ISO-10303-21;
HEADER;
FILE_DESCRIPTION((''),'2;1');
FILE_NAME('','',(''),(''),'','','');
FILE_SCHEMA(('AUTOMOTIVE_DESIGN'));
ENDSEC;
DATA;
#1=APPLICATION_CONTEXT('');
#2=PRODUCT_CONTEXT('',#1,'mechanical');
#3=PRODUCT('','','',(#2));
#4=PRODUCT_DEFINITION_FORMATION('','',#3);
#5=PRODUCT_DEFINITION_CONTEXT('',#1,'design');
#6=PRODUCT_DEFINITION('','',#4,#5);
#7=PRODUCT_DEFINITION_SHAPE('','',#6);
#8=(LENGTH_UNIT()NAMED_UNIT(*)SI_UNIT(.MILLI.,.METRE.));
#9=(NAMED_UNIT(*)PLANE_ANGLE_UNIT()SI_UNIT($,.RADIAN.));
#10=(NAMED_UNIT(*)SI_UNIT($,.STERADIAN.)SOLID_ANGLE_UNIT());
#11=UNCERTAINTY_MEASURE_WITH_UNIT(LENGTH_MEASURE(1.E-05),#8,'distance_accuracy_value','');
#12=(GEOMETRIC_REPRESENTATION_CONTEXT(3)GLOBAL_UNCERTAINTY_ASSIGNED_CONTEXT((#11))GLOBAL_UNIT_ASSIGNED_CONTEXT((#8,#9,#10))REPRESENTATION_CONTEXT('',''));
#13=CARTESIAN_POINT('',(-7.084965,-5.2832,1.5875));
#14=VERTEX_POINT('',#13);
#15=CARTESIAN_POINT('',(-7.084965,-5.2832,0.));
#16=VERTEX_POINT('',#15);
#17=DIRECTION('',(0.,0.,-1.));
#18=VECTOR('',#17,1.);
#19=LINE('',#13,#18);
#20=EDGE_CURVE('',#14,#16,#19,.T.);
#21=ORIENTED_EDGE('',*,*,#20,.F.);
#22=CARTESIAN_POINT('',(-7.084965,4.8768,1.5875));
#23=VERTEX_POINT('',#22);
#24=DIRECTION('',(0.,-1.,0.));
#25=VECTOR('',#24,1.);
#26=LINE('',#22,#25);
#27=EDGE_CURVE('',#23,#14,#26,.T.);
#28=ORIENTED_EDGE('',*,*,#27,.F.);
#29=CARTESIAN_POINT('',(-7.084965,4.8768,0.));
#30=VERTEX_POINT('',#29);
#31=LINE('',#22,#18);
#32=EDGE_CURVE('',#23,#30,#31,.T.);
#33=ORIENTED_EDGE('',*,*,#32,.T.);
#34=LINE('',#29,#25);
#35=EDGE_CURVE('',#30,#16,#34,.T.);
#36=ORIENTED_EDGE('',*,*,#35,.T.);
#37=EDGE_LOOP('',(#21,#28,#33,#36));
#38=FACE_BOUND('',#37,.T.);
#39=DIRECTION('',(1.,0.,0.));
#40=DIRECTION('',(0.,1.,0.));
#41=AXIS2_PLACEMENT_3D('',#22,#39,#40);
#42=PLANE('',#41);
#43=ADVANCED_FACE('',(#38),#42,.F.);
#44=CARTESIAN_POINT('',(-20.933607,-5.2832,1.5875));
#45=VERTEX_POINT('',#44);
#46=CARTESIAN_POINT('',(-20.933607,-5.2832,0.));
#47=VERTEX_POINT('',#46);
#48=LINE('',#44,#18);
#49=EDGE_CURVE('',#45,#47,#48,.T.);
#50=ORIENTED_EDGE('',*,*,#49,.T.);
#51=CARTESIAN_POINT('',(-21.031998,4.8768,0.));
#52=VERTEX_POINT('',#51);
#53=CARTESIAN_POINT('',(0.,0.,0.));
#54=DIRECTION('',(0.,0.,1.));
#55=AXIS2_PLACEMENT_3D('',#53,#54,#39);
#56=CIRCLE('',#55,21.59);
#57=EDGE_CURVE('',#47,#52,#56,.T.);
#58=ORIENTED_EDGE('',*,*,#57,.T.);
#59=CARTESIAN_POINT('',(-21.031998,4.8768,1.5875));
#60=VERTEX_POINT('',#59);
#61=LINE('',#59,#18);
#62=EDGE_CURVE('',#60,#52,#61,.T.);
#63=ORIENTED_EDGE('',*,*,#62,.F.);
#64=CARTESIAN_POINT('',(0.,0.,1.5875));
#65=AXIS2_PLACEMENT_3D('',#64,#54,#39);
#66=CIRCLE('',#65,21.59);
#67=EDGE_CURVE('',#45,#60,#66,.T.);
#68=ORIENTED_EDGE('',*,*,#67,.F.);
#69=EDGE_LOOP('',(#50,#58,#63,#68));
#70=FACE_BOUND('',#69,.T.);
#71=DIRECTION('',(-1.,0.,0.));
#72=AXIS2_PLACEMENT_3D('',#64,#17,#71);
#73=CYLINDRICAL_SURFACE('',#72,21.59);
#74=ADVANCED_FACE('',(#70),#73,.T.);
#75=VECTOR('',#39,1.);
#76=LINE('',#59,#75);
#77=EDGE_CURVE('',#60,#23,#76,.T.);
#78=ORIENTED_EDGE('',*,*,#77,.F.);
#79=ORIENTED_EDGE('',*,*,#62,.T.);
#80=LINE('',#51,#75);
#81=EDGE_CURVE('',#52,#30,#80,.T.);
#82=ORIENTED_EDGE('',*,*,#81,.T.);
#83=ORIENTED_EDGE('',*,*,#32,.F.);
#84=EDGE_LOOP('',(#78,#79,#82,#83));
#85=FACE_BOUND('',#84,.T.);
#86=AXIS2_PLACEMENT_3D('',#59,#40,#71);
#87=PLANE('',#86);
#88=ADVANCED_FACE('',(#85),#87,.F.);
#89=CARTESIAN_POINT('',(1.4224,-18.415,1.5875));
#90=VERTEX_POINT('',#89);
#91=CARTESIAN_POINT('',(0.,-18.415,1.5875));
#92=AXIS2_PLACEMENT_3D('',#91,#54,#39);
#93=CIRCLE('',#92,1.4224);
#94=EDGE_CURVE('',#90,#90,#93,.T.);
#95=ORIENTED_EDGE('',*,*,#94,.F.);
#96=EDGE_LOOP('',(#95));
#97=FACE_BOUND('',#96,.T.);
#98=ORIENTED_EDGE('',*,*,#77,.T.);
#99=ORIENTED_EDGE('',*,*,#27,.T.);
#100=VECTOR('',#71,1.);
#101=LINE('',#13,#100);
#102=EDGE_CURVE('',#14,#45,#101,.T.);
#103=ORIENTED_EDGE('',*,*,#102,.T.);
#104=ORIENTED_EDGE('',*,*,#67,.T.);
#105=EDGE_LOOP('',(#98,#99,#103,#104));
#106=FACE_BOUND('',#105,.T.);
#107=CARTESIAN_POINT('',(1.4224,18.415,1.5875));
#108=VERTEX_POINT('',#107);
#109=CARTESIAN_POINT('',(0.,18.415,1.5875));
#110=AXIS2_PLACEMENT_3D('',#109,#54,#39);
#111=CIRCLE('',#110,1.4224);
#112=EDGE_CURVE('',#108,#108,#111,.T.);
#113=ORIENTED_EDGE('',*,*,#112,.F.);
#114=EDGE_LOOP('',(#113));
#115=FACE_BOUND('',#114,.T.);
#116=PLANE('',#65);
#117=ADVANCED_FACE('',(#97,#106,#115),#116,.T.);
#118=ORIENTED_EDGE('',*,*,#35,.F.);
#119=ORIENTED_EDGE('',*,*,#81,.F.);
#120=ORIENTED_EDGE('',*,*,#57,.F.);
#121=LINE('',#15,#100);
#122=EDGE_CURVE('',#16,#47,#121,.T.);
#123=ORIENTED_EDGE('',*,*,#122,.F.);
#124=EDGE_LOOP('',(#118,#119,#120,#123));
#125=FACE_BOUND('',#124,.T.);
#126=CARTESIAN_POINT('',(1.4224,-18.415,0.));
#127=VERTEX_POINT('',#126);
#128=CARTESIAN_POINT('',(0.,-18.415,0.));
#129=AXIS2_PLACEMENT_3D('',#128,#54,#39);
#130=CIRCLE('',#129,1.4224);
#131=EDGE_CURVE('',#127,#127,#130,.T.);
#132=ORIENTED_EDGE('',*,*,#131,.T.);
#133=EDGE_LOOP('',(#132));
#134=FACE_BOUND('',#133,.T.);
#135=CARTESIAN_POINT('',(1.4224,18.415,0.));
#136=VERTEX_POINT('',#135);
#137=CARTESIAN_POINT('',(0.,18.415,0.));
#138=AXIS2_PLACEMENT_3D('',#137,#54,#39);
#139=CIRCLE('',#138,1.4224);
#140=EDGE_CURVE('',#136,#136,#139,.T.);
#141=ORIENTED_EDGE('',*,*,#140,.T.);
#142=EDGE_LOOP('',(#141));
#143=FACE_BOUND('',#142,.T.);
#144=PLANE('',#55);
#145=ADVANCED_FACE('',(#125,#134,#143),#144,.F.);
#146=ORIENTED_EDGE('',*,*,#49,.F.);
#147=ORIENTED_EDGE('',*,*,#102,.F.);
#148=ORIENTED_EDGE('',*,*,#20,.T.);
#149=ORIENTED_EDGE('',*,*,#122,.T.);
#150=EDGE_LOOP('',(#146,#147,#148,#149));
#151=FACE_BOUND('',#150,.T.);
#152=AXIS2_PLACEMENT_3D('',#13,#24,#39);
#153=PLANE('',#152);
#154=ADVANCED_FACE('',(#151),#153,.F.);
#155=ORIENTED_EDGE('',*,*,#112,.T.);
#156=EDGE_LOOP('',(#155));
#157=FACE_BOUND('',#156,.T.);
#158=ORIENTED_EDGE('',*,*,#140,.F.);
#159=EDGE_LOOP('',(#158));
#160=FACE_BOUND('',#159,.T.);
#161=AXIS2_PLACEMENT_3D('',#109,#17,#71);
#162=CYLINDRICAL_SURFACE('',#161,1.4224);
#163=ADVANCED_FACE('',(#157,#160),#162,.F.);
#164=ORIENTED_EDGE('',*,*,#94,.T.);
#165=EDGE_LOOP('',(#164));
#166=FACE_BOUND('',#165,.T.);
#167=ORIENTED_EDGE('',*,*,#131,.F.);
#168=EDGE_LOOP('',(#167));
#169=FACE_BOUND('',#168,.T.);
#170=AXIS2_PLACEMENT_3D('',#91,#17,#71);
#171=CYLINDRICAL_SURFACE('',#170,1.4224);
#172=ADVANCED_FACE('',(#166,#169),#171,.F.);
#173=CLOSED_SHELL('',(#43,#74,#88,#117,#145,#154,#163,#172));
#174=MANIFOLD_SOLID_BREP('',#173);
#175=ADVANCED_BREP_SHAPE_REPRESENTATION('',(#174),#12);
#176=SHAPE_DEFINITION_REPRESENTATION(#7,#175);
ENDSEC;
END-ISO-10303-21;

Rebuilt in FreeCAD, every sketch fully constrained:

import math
import FreeCAD as App
import Part
import Sketcher

V = App.Vector
Q = App.Units.Quantity

doc = App.newDocument("Part")
body = doc.addObject("PartDesign::Body", "Body")

# Sketch on XY plane
sketch1 = body.newObject("Sketcher::SketchObject", "Sketch")
sketch1.AttachmentSupport = (doc.getObject("XY_Plane"), [""])
sketch1.MapMode = "FlatFace"
sketch1.addGeometry([
    Part.LineSegment(V(-21, 4.9, 0), V(-7.1, 4.9, 0)),  # 0
    Part.LineSegment(V(-7.1, 4.9, 0), V(-7.1, -5.3, 0)),  # 1
    Part.LineSegment(V(-7.1, -5.3, 0), V(-20.9, -5.3, 0)),  # 2
    Part.ArcOfCircle(Part.Circle(V(0, 0, 0), V(0, 0, 1), 21.6), math.radians(-166), math.radians(167)),  # 3
    Part.Circle(V(0, -18.4, 0), V(0, 0, 1), 1.4),  # 4
    Part.Circle(V(0, 18.4, 0), V(0, 0, 1), 1.4),  # 5
], False)
sketch1.addConstraint([
    Sketcher.Constraint("Coincident", 0, 2, 1, 1),
    Sketcher.Constraint("Coincident", 1, 2, 2, 1),
    Sketcher.Constraint("Coincident", 2, 2, 3, 1),
    Sketcher.Constraint("Coincident", 3, 2, 0, 1),
    Sketcher.Constraint("Horizontal", 0),
    Sketcher.Constraint("Vertical", 1),
    Sketcher.Constraint("Horizontal", 2),
    Sketcher.Constraint("Coincident", 3, 3, -1, 1),
    Sketcher.Constraint("Equal", 4, 5),
    Sketcher.Constraint("Symmetric", 4, 3, 5, 3, -1, 1),
    Sketcher.Constraint("PointOnObject", 4, 3, -2),
    Sketcher.Constraint("Radius", 3, Q("0.85 in")),
    Sketcher.Constraint("Diameter", 4, Q("0.112 in")),
    Sketcher.Constraint("DistanceY", 1, 2, 1, 1, Q("0.4 in")),
    Sketcher.Constraint("DistanceY", 4, 3, 5, 3, Q("1.45 in")),
    Sketcher.Constraint("DistanceY", -1, 1, 0, 2, Q("0.192 in")),
    Sketcher.Constraint("DistanceX", 2, 2, 2, 1, Q("13.848642 mm")),
])
pad1 = body.newObject("PartDesign::Pad", "Pad")
pad1.Profile = sketch1
pad1.Length = Q("0.0625 in")

doc.recompute()
